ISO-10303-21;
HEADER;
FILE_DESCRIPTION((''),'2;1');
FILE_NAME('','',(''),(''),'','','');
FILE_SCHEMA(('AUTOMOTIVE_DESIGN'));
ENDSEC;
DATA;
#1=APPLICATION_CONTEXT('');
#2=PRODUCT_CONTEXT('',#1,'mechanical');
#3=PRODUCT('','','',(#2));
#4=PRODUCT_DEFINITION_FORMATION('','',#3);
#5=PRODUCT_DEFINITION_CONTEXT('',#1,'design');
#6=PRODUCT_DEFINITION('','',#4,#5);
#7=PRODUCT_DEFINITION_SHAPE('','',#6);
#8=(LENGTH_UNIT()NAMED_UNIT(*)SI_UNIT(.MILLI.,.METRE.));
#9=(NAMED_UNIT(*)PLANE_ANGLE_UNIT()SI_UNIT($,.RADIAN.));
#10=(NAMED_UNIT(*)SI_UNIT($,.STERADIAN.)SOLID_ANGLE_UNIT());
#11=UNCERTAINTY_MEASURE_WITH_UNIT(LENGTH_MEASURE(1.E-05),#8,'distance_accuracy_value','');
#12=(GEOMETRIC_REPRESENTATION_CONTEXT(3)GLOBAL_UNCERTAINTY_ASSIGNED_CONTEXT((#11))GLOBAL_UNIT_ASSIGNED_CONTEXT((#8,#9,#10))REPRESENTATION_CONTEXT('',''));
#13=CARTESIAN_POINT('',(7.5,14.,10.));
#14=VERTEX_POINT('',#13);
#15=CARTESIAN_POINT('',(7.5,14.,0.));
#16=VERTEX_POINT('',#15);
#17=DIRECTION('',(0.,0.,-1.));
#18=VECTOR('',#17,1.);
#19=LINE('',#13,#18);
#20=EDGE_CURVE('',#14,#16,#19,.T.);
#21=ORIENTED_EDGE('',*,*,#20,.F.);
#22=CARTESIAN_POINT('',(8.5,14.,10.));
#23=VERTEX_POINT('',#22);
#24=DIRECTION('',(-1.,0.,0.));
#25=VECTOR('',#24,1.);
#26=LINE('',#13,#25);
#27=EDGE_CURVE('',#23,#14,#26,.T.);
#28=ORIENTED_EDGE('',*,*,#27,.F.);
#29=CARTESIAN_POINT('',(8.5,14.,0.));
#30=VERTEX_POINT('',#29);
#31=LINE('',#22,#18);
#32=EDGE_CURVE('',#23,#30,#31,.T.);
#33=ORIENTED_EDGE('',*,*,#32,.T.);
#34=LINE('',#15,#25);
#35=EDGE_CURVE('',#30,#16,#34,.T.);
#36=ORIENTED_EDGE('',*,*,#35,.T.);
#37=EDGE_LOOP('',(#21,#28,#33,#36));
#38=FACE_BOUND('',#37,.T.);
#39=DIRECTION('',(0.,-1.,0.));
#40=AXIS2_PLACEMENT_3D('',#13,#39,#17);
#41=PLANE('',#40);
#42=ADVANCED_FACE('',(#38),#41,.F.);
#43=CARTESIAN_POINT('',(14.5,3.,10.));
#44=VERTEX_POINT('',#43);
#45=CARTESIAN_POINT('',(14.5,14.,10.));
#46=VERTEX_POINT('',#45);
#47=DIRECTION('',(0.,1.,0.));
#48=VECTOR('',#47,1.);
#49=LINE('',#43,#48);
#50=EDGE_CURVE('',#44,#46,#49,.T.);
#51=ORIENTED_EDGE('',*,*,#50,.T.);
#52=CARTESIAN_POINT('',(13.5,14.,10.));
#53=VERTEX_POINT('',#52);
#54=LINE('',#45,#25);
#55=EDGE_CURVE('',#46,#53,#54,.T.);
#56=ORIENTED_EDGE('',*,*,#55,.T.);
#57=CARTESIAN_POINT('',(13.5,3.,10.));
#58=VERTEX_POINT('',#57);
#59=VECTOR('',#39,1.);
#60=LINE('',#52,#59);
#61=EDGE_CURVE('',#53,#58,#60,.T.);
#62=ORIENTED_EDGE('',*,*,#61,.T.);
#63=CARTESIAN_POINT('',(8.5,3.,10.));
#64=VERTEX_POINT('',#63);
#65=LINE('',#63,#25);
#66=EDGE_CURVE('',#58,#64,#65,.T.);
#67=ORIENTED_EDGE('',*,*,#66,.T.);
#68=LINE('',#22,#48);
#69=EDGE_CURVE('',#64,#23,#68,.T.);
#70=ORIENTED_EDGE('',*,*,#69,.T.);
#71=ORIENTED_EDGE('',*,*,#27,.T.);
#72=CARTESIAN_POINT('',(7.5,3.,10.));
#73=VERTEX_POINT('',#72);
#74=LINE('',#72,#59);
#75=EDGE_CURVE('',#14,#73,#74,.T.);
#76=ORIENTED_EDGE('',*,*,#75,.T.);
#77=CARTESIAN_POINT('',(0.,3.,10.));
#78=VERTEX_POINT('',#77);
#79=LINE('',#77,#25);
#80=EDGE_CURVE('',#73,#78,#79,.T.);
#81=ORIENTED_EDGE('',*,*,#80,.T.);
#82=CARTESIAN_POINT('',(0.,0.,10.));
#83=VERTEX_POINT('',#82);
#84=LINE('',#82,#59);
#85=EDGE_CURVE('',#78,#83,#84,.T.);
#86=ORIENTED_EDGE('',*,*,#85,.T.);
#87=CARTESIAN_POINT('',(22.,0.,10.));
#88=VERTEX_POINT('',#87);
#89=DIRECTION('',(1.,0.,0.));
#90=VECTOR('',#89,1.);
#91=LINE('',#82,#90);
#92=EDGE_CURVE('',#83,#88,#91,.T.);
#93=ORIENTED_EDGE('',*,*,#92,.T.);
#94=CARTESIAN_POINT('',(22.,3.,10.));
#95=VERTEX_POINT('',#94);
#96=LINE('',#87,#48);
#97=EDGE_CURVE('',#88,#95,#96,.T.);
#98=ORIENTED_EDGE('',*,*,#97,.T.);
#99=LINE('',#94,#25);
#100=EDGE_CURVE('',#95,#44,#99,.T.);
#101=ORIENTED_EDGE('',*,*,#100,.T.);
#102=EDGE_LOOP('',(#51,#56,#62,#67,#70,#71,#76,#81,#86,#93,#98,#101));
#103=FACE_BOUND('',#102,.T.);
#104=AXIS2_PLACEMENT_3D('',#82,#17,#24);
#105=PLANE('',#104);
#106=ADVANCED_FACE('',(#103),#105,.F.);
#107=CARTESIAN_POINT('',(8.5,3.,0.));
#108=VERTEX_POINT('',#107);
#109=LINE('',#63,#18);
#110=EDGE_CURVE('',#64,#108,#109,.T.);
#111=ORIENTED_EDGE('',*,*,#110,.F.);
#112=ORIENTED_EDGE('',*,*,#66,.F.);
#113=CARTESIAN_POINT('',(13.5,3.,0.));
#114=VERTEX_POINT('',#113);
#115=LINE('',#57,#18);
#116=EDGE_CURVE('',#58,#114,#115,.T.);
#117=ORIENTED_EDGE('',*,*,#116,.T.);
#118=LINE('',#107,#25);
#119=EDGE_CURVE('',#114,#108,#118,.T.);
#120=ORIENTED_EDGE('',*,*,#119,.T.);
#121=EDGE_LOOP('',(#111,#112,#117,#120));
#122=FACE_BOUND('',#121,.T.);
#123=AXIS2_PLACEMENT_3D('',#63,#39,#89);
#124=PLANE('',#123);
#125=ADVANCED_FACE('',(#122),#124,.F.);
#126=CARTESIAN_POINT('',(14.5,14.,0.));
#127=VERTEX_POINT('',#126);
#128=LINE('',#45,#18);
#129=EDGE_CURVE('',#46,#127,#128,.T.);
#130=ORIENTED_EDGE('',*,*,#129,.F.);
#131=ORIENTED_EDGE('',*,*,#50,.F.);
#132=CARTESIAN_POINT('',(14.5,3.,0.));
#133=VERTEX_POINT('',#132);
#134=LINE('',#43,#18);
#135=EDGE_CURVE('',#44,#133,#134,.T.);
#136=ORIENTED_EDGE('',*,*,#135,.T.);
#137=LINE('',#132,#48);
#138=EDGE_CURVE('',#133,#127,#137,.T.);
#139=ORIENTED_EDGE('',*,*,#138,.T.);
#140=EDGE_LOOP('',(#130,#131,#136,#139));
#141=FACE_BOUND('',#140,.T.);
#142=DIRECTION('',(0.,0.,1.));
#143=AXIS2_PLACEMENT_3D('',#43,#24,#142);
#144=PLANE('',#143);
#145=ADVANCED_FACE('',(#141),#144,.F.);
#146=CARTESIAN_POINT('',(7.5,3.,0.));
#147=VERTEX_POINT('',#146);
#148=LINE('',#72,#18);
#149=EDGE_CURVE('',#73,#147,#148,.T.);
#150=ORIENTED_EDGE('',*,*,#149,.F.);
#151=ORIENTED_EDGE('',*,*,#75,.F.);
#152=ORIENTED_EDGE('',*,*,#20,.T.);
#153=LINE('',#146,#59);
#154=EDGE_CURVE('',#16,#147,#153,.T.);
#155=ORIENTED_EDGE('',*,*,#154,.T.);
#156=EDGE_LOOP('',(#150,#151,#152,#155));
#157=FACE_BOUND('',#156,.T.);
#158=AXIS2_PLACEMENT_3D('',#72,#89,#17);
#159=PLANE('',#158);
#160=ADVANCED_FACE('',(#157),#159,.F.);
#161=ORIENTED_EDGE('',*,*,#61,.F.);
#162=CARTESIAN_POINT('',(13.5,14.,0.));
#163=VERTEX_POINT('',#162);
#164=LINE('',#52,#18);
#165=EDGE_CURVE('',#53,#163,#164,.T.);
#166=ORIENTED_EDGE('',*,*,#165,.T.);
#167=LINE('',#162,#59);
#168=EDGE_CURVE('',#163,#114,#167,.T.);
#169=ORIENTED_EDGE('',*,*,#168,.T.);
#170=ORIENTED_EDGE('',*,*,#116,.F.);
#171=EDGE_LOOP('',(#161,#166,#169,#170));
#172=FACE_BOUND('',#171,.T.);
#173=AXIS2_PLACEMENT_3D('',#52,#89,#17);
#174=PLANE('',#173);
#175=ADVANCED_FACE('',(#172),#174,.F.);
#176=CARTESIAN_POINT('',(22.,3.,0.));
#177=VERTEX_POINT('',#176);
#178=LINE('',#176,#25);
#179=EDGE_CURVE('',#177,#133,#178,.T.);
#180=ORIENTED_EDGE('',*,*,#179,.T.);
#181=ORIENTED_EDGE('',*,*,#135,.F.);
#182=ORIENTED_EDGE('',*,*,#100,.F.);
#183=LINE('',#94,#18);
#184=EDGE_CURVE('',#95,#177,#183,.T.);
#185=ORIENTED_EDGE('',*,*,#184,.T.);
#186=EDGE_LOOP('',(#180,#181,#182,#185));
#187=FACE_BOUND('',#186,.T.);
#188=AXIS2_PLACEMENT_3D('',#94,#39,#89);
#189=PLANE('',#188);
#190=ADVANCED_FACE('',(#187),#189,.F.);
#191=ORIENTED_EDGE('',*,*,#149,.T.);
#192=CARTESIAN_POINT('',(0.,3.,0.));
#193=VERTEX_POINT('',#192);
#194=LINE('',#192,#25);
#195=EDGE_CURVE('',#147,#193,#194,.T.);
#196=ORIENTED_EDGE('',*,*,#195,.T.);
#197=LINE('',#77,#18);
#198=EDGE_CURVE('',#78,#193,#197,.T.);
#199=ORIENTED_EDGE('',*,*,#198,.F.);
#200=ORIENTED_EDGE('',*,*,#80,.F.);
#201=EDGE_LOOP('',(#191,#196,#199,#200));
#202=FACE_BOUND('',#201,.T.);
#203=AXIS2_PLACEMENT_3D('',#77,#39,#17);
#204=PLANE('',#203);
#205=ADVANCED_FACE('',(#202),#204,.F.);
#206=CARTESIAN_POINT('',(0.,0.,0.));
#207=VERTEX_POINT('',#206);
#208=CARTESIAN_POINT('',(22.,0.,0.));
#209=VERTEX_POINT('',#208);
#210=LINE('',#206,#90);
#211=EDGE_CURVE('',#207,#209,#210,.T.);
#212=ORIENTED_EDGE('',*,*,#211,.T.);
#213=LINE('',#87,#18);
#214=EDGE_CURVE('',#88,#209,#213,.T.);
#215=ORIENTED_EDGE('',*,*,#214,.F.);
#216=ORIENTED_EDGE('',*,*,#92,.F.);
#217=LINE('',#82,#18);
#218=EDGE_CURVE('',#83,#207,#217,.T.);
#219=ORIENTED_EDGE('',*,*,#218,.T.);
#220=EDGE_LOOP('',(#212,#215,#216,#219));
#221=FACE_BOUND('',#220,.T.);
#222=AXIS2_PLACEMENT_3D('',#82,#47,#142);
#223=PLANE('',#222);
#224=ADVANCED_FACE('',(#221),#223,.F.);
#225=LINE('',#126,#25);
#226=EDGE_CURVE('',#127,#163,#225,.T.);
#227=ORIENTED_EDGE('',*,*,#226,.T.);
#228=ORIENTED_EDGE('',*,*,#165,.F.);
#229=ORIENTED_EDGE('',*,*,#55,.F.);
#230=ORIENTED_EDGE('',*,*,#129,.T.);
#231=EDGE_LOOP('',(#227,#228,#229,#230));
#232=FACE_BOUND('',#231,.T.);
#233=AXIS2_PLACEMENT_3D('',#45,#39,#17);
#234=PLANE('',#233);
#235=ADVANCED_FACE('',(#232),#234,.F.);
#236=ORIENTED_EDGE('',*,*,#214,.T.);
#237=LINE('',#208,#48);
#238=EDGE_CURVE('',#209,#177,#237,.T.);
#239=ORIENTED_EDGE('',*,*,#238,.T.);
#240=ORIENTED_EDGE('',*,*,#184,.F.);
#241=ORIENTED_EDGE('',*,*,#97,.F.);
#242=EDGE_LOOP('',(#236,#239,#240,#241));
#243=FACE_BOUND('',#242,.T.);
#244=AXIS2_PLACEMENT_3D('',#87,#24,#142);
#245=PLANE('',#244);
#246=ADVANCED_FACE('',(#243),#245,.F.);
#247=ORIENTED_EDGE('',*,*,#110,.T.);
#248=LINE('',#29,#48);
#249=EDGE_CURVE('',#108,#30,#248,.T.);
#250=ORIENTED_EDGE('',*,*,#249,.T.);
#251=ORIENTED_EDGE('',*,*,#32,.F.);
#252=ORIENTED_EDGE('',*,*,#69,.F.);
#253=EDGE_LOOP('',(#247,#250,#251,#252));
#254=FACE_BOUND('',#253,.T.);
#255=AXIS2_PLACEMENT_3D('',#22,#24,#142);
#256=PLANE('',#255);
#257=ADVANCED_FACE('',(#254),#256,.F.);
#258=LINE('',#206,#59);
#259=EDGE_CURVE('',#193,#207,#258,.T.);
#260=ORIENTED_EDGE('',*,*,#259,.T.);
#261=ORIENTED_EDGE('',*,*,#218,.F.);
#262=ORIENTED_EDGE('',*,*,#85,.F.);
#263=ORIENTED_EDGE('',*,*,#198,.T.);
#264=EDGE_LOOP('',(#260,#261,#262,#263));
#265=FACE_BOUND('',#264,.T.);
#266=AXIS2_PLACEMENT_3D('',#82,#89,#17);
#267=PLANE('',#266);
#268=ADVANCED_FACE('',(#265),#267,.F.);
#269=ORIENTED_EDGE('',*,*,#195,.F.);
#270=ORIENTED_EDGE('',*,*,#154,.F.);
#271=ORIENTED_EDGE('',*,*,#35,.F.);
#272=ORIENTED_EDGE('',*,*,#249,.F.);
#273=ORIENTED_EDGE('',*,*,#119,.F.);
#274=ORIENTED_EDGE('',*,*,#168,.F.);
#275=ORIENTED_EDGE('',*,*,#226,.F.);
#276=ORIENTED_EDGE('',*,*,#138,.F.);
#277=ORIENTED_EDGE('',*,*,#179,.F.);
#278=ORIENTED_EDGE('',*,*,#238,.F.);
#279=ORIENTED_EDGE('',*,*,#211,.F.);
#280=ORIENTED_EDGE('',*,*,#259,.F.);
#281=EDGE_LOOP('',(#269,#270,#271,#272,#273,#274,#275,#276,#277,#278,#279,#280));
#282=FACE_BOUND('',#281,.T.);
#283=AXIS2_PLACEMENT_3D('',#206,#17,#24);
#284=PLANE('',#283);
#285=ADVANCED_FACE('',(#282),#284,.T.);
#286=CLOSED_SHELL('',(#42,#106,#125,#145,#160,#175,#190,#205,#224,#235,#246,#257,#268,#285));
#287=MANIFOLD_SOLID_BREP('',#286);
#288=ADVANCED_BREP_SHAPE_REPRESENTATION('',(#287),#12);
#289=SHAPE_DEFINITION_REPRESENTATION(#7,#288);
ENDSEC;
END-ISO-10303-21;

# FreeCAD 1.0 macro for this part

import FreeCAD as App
import Part
import Sketcher
from FreeCAD import Vector
Q = App.Units.Quantity

doc = App.newDocument("Part")
body = doc.addObject("PartDesign::Body", "Body")

sketch1 = doc.addObject("Sketcher::SketchObject", "Sketch")
body.addObject(sketch1)
sketch1.AttachmentSupport = (doc.XY_Plane, [""])
sketch1.MapMode = "FlatFace"
sketch1.addGeometry([
    Part.LineSegment(Vector(0, 0, 0), Vector(22, 0, 0)),
    Part.LineSegment(Vector(22, 0, 0), Vector(22, 3, 0)),
    Part.LineSegment(Vector(22, 3, 0), Vector(14.5, 3, 0)),
    Part.LineSegment(Vector(14.5, 3, 0), Vector(14.5, 14, 0)),
    Part.LineSegment(Vector(14.5, 14, 0), Vector(13.5, 14, 0)),
    Part.LineSegment(Vector(13.5, 14, 0), Vector(13.5, 3, 0)),
    Part.LineSegment(Vector(13.5, 3, 0), Vector(8.5, 3, 0)),
    Part.LineSegment(Vector(8.5, 3, 0), Vector(8.5, 14, 0)),
    Part.LineSegment(Vector(8.5, 14, 0), Vector(7.5, 14, 0)),
    Part.LineSegment(Vector(7.5, 14, 0), Vector(7.5, 3, 0)),
    Part.LineSegment(Vector(7.5, 3, 0), Vector(0, 3, 0)),
    Part.LineSegment(Vector(0, 3, 0), Vector(0, 0, 0)),
], False)
sketch1.addConstraint([
    Sketcher.Constraint("Coincident", 0, 2, 1, 1),
    Sketcher.Constraint("Coincident", 1, 2, 2, 1),
    Sketcher.Constraint("Coincident", 2, 2, 3, 1),
    Sketcher.Constraint("Coincident", 3, 2, 4, 1),
    Sketcher.Constraint("Coincident", 4, 2, 5, 1),
    Sketcher.Constraint("Coincident", 5, 2, 6, 1),
    Sketcher.Constraint("Coincident", 6, 2, 7, 1),
    Sketcher.Constraint("Coincident", 7, 2, 8, 1),
    Sketcher.Constraint("Coincident", 8, 2, 9, 1),
    Sketcher.Constraint("Coincident", 9, 2, 10, 1),
    Sketcher.Constraint("Coincident", 10, 2, 11, 1),
    Sketcher.Constraint("Coincident", 11, 2, 0, 1),
    Sketcher.Constraint("Horizontal", 0),
    Sketcher.Constraint("Vertical", 1),
    Sketcher.Constraint("Horizontal", 2),
    Sketcher.Constraint("Vertical", 3),
    Sketcher.Constraint("Horizontal", 4),
    Sketcher.Constraint("Vertical", 5),
    Sketcher.Constraint("Horizontal", 6),
    Sketcher.Constraint("Vertical", 7),
    Sketcher.Constraint("Horizontal", 8),
    Sketcher.Constraint("Vertical", 9),
    Sketcher.Constraint("Horizontal", 10),
    Sketcher.Constraint("Vertical", 11),
    Sketcher.Constraint("Coincident", 11, 2, -1, 1),
    Sketcher.Constraint("Horizontal", 2, 2, 5, 2),
    Sketcher.Constraint("Horizontal", 4, 2, 7, 2),
    Sketcher.Constraint("Horizontal", 6, 2, 9, 2),
    Sketcher.Constraint("Equal", 4, 8),
    Sketcher.Constraint("Equal", 2, 10),
    Sketcher.Constraint("DistanceX", 0, 1, 0, 2, Q("22 mm")),
    Sketcher.Constraint("DistanceX", 4, 2, 4, 1, Q("1 mm")),
    Sketcher.Constraint("DistanceX", 6, 2, 6, 1, Q("5 mm")),
    Sketcher.Constraint("DistanceY", 1, 1, 1, 2, Q("3 mm")),
    Sketcher.Constraint("DistanceY", 3, 1, 3, 2, Q("11 mm")),
])
pad1 = doc.addObject("PartDesign::Pad", "Pad")
body.addObject(pad1)
pad1.Profile = sketch1
pad1.Length = 10

doc.recompute()
